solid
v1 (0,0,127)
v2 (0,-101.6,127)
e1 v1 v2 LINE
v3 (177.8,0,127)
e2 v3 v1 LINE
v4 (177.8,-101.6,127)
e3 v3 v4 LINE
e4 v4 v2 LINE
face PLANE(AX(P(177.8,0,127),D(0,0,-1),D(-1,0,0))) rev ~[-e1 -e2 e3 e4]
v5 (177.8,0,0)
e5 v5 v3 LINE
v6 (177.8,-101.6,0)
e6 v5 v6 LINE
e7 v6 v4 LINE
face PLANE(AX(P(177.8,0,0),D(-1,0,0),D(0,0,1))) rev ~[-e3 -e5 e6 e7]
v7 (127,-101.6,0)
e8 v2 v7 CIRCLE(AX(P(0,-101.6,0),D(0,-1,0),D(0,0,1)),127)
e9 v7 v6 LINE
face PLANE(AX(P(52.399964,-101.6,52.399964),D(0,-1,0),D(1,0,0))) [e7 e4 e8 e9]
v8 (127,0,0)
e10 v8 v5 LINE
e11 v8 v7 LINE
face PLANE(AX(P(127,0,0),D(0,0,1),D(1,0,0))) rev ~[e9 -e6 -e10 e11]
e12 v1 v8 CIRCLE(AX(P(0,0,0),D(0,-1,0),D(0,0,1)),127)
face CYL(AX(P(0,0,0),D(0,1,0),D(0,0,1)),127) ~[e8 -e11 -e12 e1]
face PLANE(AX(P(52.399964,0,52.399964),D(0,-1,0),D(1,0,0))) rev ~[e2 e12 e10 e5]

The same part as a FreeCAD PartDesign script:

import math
import FreeCAD as App
import Part
import Sketcher
Q = App.Units.Quantity

doc = App.newDocument("Part")
params = doc.addObject("Spreadsheet::Sheet", "Params")
for row, (alias, value) in enumerate([
    ("sketch1_radius", "5 in"),
    ("sketch1_width", "2 in"),
    ("pad1_length", "4 in"),
], start=1):
    params.set(f"A{row}", alias)
    params.set(f"B{row}", "=" + value)
    params.setAlias(f"B{row}", alias)

body = doc.addObject("PartDesign::Body", "Body")

# Sketch on XZ plane
sketch1 = body.newObject("Sketcher::SketchObject", "Sketch")
sketch1.AttachmentSupport = (doc.getObject("XZ_Plane"), [""])
sketch1.MapMode = "FlatFace"
sketch1.addGeometry(Part.ArcOfCircle(Part.Circle(App.Vector(0, 0, 0), App.Vector(0, 0, 1), 127), math.radians(90), math.radians(360)), False)
sketch1.addGeometry(Part.LineSegment(App.Vector(127, 0, 0), App.Vector(178, 0, 0)), False)
sketch1.addGeometry(Part.LineSegment(App.Vector(178, 0, 0), App.Vector(178, 127, 0)), False)
sketch1.addGeometry(Part.LineSegment(App.Vector(178, 127, 0), App.Vector(0, 127, 0)), False)
sketch1.addConstraint(Sketcher.Constraint("Coincident", 0, 2, 1, 1))
sketch1.addConstraint(Sketcher.Constraint("Coincident", 1, 2, 2, 1))
sketch1.addConstraint(Sketcher.Constraint("Coincident", 2, 2, 3, 1))
sketch1.addConstraint(Sketcher.Constraint("Tangent", 3, 2, 0, 1))
sketch1.addConstraint(Sketcher.Constraint("Horizontal", 1))
sketch1.addConstraint(Sketcher.Constraint("Vertical", 2))
sketch1.addConstraint(Sketcher.Constraint("Horizontal", 3))
sketch1.addConstraint(Sketcher.Constraint("Coincident", 0, 3, -1, 1))
sketch1.addConstraint(Sketcher.Constraint("PointOnObject", 0, 2, -1))
sketch1.addConstraint(Sketcher.Constraint("Radius", 0, Q("5 in")))
sketch1.addConstraint(Sketcher.Constraint("DistanceX", 1, 1, 1, 2, Q("2 in")))
sketch1.setExpression("Constraints[9]", "Params.sketch1_radius")
sketch1.setExpression("Constraints[10]", "Params.sketch1_width")
pad1 = body.newObject("PartDesign::Pad", "Pad")
pad1.Profile = sketch1
pad1.setExpression("Length", "Params.pad1_length")

doc.recompute()
